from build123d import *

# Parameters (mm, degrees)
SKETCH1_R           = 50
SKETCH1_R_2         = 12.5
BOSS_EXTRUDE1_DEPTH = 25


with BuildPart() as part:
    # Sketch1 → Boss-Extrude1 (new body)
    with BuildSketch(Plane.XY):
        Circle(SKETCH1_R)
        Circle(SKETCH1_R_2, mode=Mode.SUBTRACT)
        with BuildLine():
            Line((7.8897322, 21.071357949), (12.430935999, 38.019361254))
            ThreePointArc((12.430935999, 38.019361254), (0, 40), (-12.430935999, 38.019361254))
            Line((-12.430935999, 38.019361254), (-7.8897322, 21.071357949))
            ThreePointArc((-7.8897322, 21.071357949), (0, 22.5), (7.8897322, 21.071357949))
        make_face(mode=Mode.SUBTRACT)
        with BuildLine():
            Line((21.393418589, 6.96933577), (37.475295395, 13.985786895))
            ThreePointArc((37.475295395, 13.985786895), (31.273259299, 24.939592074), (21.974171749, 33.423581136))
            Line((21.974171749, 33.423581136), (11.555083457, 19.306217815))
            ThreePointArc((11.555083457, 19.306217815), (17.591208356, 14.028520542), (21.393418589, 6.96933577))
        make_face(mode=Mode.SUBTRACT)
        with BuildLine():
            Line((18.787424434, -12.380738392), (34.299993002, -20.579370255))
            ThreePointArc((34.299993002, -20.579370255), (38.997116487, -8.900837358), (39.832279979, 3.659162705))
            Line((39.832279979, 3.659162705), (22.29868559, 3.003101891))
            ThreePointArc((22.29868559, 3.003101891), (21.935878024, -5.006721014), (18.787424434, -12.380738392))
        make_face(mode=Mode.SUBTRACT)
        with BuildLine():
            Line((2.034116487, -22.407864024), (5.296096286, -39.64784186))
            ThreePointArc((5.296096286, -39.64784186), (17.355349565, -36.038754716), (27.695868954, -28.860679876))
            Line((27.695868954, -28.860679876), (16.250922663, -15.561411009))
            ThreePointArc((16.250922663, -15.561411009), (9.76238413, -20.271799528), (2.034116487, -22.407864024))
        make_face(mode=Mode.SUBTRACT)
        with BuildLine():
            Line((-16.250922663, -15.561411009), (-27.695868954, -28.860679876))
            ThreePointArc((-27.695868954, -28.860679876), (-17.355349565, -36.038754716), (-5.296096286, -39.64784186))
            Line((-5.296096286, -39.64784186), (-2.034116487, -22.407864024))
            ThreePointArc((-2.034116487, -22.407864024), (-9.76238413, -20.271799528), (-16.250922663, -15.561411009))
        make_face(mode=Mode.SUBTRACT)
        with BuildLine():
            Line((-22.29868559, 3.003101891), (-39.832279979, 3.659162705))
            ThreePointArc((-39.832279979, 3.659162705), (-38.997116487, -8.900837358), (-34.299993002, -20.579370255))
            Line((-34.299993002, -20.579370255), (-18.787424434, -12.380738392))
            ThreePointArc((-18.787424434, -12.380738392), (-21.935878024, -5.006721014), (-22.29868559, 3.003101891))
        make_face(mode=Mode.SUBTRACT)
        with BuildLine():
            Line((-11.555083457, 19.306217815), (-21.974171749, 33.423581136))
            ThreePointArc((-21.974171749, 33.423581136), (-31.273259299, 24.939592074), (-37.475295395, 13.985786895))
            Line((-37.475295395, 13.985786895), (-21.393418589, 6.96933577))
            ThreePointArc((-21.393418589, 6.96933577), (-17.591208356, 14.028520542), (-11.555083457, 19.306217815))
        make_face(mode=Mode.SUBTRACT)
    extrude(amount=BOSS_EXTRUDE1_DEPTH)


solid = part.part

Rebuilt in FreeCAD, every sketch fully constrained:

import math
import FreeCAD as App
import Part
import Sketcher

V = App.Vector
Q = App.Units.Quantity

doc = App.newDocument("Part")
body = doc.addObject("PartDesign::Body", "Body")

# Sketch on XY plane
sketch1 = body.newObject("Sketcher::SketchObject", "Sketch")
sketch1.AttachmentSupport = (doc.getObject("XY_Plane"), [""])
sketch1.MapMode = "FlatFace"
sketch1.addGeometry(Part.Circle(V(0, 0, 0), V(0, 0, 1), 50), False)
sketch1.addGeometry(Part.LineSegment(V(-27.695869, -28.86068, 0), V(-16.250923, -15.561411, 0)), False)
sketch1.addGeometry(Part.ArcOfCircle(Part.Circle(V(0, 0, 0), V(0, 0, 1), 22.5), math.radians(-136.241654), math.radians(-95.186917)), False)
sketch1.addGeometry(Part.LineSegment(V(-2.034116, -22.407864, 0), V(-5.296096, -39.647842, 0)), False)
sketch1.addGeometry(Part.ArcOfCircle(Part.Circle(V(0, 0, 0), V(0, 0, 1), 40), math.radians(-133.820131), math.radians(-97.60844)), False)
sketch1.addGeometry(Part.LineSegment(V(-39.83228, 3.659163, 0), V(-22.298686, 3.003102, 0)), False)
sketch1.addGeometry(Part.ArcOfCircle(Part.Circle(V(0, 0, 0), V(0, 0, 1), 22.5), math.radians(172.329774), math.radians(213.384512)), False)
sketch1.addGeometry(Part.LineSegment(V(-18.787424, -12.380738, 0), V(-34.299993, -20.57937, 0)), False)
sketch1.addGeometry(Part.ArcOfCircle(Part.Circle(V(0, 0, 0), V(0, 0, 1), 40), math.radians(174.751298), math.radians(210.962988)), False)
sketch1.addGeometry(Part.LineSegment(V(5.296096, -39.647842, 0), V(2.034116, -22.407864, 0)), False)
sketch1.addGeometry(Part.ArcOfCircle(Part.Circle(V(0, 0, 0), V(0, 0, 1), 22.5), math.radians(-84.813083), math.radians(-43.758346)), False)
sketch1.addGeometry(Part.LineSegment(V(16.250923, -15.561411, 0), V(27.695869, -28.86068, 0)), False)
sketch1.addGeometry(Part.ArcOfCircle(Part.Circle(V(0, 0, 0), V(0, 0, 1), 40), math.radians(-82.39156), math.radians(-46.179869)), False)
sketch1.addGeometry(Part.Circle(V(0, 0, 0), V(0, 0, 1), 12.5), False)
sketch1.addGeometry(Part.LineSegment(V(34.299993, -20.57937, 0), V(18.787424, -12.380738, 0)), False)
sketch1.addGeometry(Part.ArcOfCircle(Part.Circle(V(0, 0, 0), V(0, 0, 1), 22.5), math.radians(-33.384512), math.radians(7.670226)), False)
sketch1.addGeometry(Part.LineSegment(V(22.298686, 3.003102, 0), V(39.83228, 3.659163, 0)), False)
sketch1.addGeometry(Part.ArcOfCircle(Part.Circle(V(0, 0, 0), V(0, 0, 1), 40), math.radians(-30.962988), math.radians(5.248702)), False)
sketch1.addGeometry(Part.LineSegment(V(-21.974172, 33.423581, 0), V(-11.555083, 19.306218, 0)), False)
sketch1.addGeometry(Part.ArcOfCircle(Part.Circle(V(0, 0, 0), V(0, 0, 1), 22.5), math.radians(120.901203), math.radians(161.95594)), False)
sketch1.addGeometry(Part.LineSegment(V(-21.393419, 6.969336, 0), V(-37.475295, 13.985787, 0)), False)
sketch1.addGeometry(Part.ArcOfCircle(Part.Circle(V(0, 0, 0), V(0, 0, 1), 40), math.radians(123.322726), math.radians(159.534417)), False)
sketch1.addGeometry(Part.LineSegment(V(12.430936, 38.019361, 0), V(7.889732, 21.071358, 0)), False)
sketch1.addGeometry(Part.ArcOfCircle(Part.Circle(V(0, 0, 0), V(0, 0, 1), 22.5), math.radians(69.472631), math.radians(110.527369)), False)
sketch1.addGeometry(Part.LineSegment(V(-7.889732, 21.071358, 0), V(-12.430936, 38.019361, 0)), False)
sketch1.addGeometry(Part.ArcOfCircle(Part.Circle(V(0, 0, 0), V(0, 0, 1), 40), math.radians(71.894155), math.radians(108.105845)), False)
sketch1.addGeometry(Part.LineSegment(V(37.475295, 13.985787, 0), V(21.393419, 6.969336, 0)), False)
sketch1.addGeometry(Part.ArcOfCircle(Part.Circle(V(0, 0, 0), V(0, 0, 1), 22.5), math.radians(18.04406), math.radians(59.098797)), False)
sketch1.addGeometry(Part.LineSegment(V(11.555083, 19.306218, 0), V(21.974172, 33.423581, 0)), False)
sketch1.addGeometry(Part.ArcOfCircle(Part.Circle(V(0, 0, 0), V(0, 0, 1), 40), math.radians(20.465583), math.radians(56.677274)), False)
sketch1.addConstraint(Sketcher.Constraint("Coincident", 1, 2, 2, 1))
sketch1.addConstraint(Sketcher.Constraint("Coincident", 2, 2, 3, 1))
sketch1.addConstraint(Sketcher.Constraint("Coincident", 3, 2, 4, 2))
sketch1.addConstraint(Sketcher.Constraint("Coincident", 4, 1, 1, 1))
sketch1.addConstraint(Sketcher.Constraint("Coincident", 5, 2, 6, 1))
sketch1.addConstraint(Sketcher.Constraint("Coincident", 6, 2, 7, 1))
sketch1.addConstraint(Sketcher.Constraint("Coincident", 7, 2, 8, 2))
sketch1.addConstraint(Sketcher.Constraint("Coincident", 8, 1, 5, 1))
sketch1.addConstraint(Sketcher.Constraint("Coincident", 9, 2, 10, 1))
sketch1.addConstraint(Sketcher.Constraint("Coincident", 10, 2, 11, 1))
sketch1.addConstraint(Sketcher.Constraint("Coincident", 11, 2, 12, 2))
sketch1.addConstraint(Sketcher.Constraint("Coincident", 12, 1, 9, 1))
sketch1.addConstraint(Sketcher.Constraint("Coincident", 14, 2, 15, 1))
sketch1.addConstraint(Sketcher.Constraint("Coincident", 15, 2, 16, 1))
sketch1.addConstraint(Sketcher.Constraint("Coincident", 16, 2, 17, 2))
sketch1.addConstraint(Sketcher.Constraint("Coincident", 17, 1, 14, 1))
sketch1.addConstraint(Sketcher.Constraint("Coincident", 18, 2, 19, 1))
sketch1.addConstraint(Sketcher.Constraint("Coincident", 19, 2, 20, 1))
sketch1.addConstraint(Sketcher.Constraint("Coincident", 20, 2, 21, 2))
sketch1.addConstraint(Sketcher.Constraint("Coincident", 21, 1, 18, 1))
sketch1.addConstraint(Sketcher.Constraint("Coincident", 22, 2, 23, 1))
sketch1.addConstraint(Sketcher.Constraint("Coincident", 23, 2, 24, 1))
sketch1.addConstraint(Sketcher.Constraint("Coincident", 24, 2, 25, 2))
sketch1.addConstraint(Sketcher.Constraint("Coincident", 25, 1, 22, 1))
sketch1.addConstraint(Sketcher.Constraint("Coincident", 26, 2, 27, 1))
sketch1.addConstraint(Sketcher.Constraint("Coincident", 27, 2, 28, 1))
sketch1.addConstraint(Sketcher.Constraint("Coincident", 28, 2, 29, 2))
sketch1.addConstraint(Sketcher.Constraint("Coincident", 29, 1, 26, 1))
sketch1.addConstraint(Sketcher.Constraint("Coincident", 0, 3, -1, 1))
sketch1.addConstraint(Sketcher.Constraint("Coincident", 2, 3, -1, 1))
sketch1.addConstraint(Sketcher.Constraint("Coincident", 4, 3, -1, 1))
sketch1.addConstraint(Sketcher.Constraint("Coincident", 6, 3, -1, 1))
sketch1.addConstraint(Sketcher.Constraint("Coincident", 8, 3, -1, 1))
sketch1.addConstraint(Sketcher.Constraint("Coincident", 10, 3, -1, 1))
sketch1.addConstraint(Sketcher.Constraint("Coincident", 12, 3, -1, 1))
sketch1.addConstraint(Sketcher.Constraint("Coincident", 13, 3, -1, 1))
sketch1.addConstraint(Sketcher.Constraint("Coincident", 15, 3, -1, 1))
sketch1.addConstraint(Sketcher.Constraint("Coincident", 17, 3, -1, 1))
sketch1.addConstraint(Sketcher.Constraint("Coincident", 19, 3, -1, 1))
sketch1.addConstraint(Sketcher.Constraint("Coincident", 21, 3, -1, 1))
sketch1.addConstraint(Sketcher.Constraint("Coincident", 23, 3, -1, 1))
sketch1.addConstraint(Sketcher.Constraint("Coincident", 25, 3, -1, 1))
sketch1.addConstraint(Sketcher.Constraint("Coincident", 27, 3, -1, 1))
sketch1.addConstraint(Sketcher.Constraint("Coincident", 29, 3, -1, 1))
sketch1.addConstraint(Sketcher.Constraint("Equal", 2, 6))
sketch1.addConstraint(Sketcher.Constraint("Equal", 4, 8))
sketch1.addConstraint(Sketcher.Constraint("Equal", 6, 10))
sketch1.addConstraint(Sketcher.Constraint("Equal", 8, 12))
sketch1.addConstraint(Sketcher.Constraint("Equal", 10, 15))
sketch1.addConstraint(Sketcher.Constraint("Equal", 12, 17))
sketch1.addConstraint(Sketcher.Constraint("Equal", 15, 19))
sketch1.addConstraint(Sketcher.Constraint("Equal", 17, 21))
sketch1.addConstraint(Sketcher.Constraint("Equal", 19, 23))
sketch1.addConstraint(Sketcher.Constraint("Equal", 21, 25))
sketch1.addConstraint(Sketcher.Constraint("Equal", 23, 27))
sketch1.addConstraint(Sketcher.Constraint("Equal", 25, 29))
sketch1.addConstraint(Sketcher.Constraint("Horizontal", 2, 2, 9, 2))
sketch1.addConstraint(Sketcher.Constraint("Horizontal", 1, 2, 10, 2))
sketch1.addConstraint(Sketcher.Constraint("Horizontal", 4, 1, 11, 2))
sketch1.addConstraint(Sketcher.Constraint("Horizontal", 3, 2, 12, 1))
sketch1.addConstraint(Sketcher.Constraint("Horizontal", 6, 2, 14, 2))
sketch1.addConstraint(Sketcher.Constraint("Horizontal", 5, 2, 15, 2))
sketch1.addConstraint(Sketcher.Constraint("Horizontal", 8, 1, 16, 2))
sketch1.addConstraint(Sketcher.Constraint("Horizontal", 7, 2, 17, 1))
sketch1.addConstraint(Sketcher.Constraint("Horizontal", 22, 2, 23, 2))
sketch1.addConstraint(Sketcher.Constraint("Horizontal", 24, 2, 25, 1))
sketch1.addConstraint(Sketcher.Constraint("Horizontal", 19, 2, 26, 2))
sketch1.addConstraint(Sketcher.Constraint("Horizontal", 18, 2, 27, 2))
sketch1.addConstraint(Sketcher.Constraint("Horizontal", 21, 1, 28, 2))
sketch1.addConstraint(Sketcher.Constraint("Horizontal", 20, 2, 29, 1))
sketch1.addConstraint(Sketcher.Constraint("Equal", 1, 3))
sketch1.addConstraint(Sketcher.Constraint("Equal", 3, 5))
sketch1.addConstraint(Sketcher.Constraint("Equal", 5, 7))
sketch1.addConstraint(Sketcher.Constraint("Equal", 16, 18))
sketch1.addConstraint(Sketcher.Constraint("Equal", 18, 20))
sketch1.addConstraint(Sketcher.Constraint("Equal", 20, 22))
sketch1.addConstraint(Sketcher.Constraint("Diameter", 0, Q("100 mm")))
sketch1.addConstraint(Sketcher.Constraint("Diameter", 13, Q("25 mm")))
sketch1.addConstraint(Sketcher.Constraint("Radius", 4, Q("40 mm")))
sketch1.addConstraint(Sketcher.Constraint("Radius", 2, Q("22.5 mm")))
sketch1.addConstraint(Sketcher.Constraint("Angle", 22, Q("-105 deg")))
sketch1.addConstraint(Sketcher.Constraint("DistanceY", -1, 1, 5, 2, Q("3.003102 mm")))
sketch1.addConstraint(Sketcher.Constraint("DistanceX", 6, 2, 1, 2, Q("2.536502 mm")))
sketch1.addConstraint(Sketcher.Constraint("DistanceY", 6, 2, 8, 1, Q("16.039901 mm")))
sketch1.addConstraint(Sketcher.Constraint("DistanceY", 1, 2, -1, 1, Q("15.561411 mm")))
sketch1.addConstraint(Sketcher.Constraint("DistanceY", 3, 2, -1, 1, Q("39.647842 mm")))
sketch1.addConstraint(Sketcher.Constraint("DistanceX", 19, 2, -1, 1, Q("21.393419 mm")))
sketch1.addConstraint(Sketcher.Constraint("DistanceX", 21, 1, -1, 1, Q("21.974172 mm")))
pad1 = body.newObject("PartDesign::Pad", "Pad")
pad1.Profile = sketch1
pad1.Length = 25

doc.recompute()
